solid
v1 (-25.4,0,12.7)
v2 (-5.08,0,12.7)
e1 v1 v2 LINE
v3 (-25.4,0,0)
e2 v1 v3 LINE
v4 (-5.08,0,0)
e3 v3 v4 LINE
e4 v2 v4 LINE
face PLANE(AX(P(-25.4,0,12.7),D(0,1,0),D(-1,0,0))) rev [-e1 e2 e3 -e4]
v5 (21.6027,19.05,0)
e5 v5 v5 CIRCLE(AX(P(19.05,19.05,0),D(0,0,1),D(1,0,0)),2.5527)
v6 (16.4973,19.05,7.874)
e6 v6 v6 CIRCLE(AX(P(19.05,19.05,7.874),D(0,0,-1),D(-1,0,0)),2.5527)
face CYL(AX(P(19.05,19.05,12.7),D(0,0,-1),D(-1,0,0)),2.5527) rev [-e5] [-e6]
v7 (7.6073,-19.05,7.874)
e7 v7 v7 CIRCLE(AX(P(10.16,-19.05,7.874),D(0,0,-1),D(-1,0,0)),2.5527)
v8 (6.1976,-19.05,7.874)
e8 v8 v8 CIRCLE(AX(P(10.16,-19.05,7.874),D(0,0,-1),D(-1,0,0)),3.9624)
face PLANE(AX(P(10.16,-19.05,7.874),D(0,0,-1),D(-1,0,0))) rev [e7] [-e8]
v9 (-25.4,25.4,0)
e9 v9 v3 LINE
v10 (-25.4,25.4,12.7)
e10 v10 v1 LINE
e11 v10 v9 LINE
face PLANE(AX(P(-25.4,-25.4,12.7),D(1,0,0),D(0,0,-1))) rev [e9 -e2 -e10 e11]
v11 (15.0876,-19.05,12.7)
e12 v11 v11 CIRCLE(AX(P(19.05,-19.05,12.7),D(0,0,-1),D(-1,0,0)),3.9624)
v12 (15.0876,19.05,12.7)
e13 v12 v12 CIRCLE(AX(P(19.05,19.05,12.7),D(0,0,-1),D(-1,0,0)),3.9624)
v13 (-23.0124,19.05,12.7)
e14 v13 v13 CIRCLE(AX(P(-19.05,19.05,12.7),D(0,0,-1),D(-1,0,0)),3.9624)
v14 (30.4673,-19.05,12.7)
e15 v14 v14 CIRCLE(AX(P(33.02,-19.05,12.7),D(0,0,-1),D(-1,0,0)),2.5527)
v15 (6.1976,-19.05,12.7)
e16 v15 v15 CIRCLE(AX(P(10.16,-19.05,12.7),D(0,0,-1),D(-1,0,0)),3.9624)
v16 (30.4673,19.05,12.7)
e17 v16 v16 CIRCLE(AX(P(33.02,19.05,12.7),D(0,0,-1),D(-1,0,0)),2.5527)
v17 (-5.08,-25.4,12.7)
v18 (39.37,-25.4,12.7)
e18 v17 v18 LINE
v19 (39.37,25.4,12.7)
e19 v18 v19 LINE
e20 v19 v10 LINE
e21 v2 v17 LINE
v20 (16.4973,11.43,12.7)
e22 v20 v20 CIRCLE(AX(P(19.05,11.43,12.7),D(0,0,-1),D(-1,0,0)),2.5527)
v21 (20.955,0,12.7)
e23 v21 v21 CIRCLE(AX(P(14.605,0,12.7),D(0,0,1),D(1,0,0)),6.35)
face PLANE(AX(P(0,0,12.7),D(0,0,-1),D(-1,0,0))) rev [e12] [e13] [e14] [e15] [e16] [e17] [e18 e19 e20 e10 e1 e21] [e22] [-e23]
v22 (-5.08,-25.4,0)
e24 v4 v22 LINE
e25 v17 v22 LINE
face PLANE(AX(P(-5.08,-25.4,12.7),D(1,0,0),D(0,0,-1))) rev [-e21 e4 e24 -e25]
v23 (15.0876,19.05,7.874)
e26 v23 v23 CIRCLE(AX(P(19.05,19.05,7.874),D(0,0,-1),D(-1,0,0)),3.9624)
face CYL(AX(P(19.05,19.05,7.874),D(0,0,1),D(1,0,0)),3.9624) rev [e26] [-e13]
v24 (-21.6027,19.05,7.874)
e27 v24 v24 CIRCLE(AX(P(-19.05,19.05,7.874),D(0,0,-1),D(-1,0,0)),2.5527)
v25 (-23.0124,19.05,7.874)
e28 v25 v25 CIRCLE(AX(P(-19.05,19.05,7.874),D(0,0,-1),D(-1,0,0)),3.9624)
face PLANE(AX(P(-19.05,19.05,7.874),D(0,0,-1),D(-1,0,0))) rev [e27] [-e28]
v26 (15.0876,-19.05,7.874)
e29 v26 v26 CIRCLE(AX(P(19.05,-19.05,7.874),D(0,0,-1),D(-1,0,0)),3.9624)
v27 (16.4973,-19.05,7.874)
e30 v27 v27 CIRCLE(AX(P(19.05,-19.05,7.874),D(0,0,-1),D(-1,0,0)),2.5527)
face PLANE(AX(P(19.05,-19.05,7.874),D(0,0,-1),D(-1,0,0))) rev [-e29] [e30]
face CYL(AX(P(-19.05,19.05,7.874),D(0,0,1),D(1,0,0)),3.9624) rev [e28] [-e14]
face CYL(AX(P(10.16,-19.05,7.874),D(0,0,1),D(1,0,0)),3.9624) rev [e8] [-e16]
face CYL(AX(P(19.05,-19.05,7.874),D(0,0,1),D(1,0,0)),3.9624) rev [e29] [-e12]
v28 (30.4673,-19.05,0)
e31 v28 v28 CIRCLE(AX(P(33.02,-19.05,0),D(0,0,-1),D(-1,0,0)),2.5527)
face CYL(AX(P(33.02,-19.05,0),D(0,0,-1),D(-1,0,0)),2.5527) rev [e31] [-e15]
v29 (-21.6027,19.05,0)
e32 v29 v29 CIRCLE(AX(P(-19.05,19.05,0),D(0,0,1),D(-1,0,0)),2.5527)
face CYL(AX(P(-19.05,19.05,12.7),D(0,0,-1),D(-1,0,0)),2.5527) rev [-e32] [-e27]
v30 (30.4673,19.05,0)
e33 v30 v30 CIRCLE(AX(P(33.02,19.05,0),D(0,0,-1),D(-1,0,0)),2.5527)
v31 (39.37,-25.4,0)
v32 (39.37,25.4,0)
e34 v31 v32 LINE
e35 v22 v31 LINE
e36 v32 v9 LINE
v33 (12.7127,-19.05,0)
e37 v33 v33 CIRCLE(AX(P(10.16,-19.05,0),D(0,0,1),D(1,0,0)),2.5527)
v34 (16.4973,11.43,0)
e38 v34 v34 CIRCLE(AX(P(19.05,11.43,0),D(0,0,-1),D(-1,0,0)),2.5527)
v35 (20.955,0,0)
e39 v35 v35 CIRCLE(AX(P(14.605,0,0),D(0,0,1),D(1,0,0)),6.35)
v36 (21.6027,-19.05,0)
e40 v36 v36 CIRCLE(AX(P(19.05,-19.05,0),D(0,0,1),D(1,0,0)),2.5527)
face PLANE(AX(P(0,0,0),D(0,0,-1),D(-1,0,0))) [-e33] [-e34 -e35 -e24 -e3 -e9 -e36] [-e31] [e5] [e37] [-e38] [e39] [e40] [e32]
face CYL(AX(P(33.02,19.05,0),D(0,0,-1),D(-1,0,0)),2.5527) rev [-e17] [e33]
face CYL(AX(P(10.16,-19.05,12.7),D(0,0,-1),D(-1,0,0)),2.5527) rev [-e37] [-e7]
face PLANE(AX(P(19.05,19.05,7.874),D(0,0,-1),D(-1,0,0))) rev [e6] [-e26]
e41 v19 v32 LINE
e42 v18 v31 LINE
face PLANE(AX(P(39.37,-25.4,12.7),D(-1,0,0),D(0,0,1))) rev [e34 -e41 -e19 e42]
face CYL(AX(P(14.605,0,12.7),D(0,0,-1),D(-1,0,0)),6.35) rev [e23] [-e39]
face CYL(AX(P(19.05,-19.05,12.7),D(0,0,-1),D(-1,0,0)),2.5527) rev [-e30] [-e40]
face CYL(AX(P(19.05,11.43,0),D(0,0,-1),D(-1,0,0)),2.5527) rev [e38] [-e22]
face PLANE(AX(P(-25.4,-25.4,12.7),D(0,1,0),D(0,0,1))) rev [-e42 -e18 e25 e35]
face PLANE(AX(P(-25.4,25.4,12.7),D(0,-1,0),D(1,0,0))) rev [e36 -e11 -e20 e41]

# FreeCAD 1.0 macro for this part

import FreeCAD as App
import Part
import Sketcher

V = App.Vector
Q = App.Units.Quantity

doc = App.newDocument("Part")
body = doc.addObject("PartDesign::Body", "Body")

# Sketch on XY plane
sketch1 = body.newObject("Sketcher::SketchObject", "Sketch")
sketch1.AttachmentSupport = (doc.getObject("XY_Plane"), [""])
sketch1.MapMode = "FlatFace"
sketch1.addGeometry(Part.LineSegment(V(-25.4, 25.4, 0), V(-25.4, -25.4, 0)), False)
sketch1.addGeometry(Part.LineSegment(V(-25.4, -25.4, 0), V(39.4, -25.4, 0)), False)
sketch1.addGeometry(Part.LineSegment(V(39.4, -25.4, 0), V(39.4, 25.4, 0)), False)
sketch1.addGeometry(Part.LineSegment(V(39.4, 25.4, 0), V(-25.4, 25.4, 0)), False)
sketch1.addGeometry(Part.Circle(V(10.2, -19.1, 0), V(0, 0, 1), 2.6), False)
sketch1.addGeometry(Part.Circle(V(19.1, -19.1, 0), V(0, 0, 1), 2.6), False)
sketch1.addGeometry(Part.Circle(V(-19.1, 19.1, 0), V(0, 0, 1), 2.6), False)
sketch1.addGeometry(Part.Circle(V(14.6, 0, 0), V(0, 0, 1), 6.3), False)
sketch1.addGeometry(Part.Circle(V(19.1, 19.1, 0), V(0, 0, 1), 2.6), False)
sketch1.addConstraint(Sketcher.Constraint("Coincident", 0, 2, 1, 1))
sketch1.addConstraint(Sketcher.Constraint("Coincident", 1, 2, 2, 1))
sketch1.addConstraint(Sketcher.Constraint("Coincident", 2, 2, 3, 1))
sketch1.addConstraint(Sketcher.Constraint("Coincident", 3, 2, 0, 1))
sketch1.addConstraint(Sketcher.Constraint("Vertical", 0))
sketch1.addConstraint(Sketcher.Constraint("Horizontal", 1))
sketch1.addConstraint(Sketcher.Constraint("Vertical", 2))
sketch1.addConstraint(Sketcher.Constraint("Horizontal", 3))
sketch1.addConstraint(Sketcher.Constraint("Equal", 4, 5))
sketch1.addConstraint(Sketcher.Constraint("Equal", 5, 6))
sketch1.addConstraint(Sketcher.Constraint("Equal", 6, 8))
sketch1.addConstraint(Sketcher.Constraint("Symmetric", 5, 3, 6, 3, -1, 1))
sketch1.addConstraint(Sketcher.Constraint("Symmetric", 6, 3, 8, 3, -2))
sketch1.addConstraint(Sketcher.Constraint("PointOnObject", 7, 3, -1))
sketch1.addConstraint(Sketcher.Constraint("Horizontal", 4, 3, 5, 3))
sketch1.addConstraint(Sketcher.Constraint("Diameter", 7, Q("0.5 in")))
sketch1.addConstraint(Sketcher.Constraint("DistanceY", 0, 2, 0, 1, Q("2 in")))
sketch1.addConstraint(Sketcher.Constraint("Diameter", 4, Q("0.201 in")))
sketch1.addConstraint(Sketcher.Constraint("DistanceX", 0, 2, -1, 1, Q("1 in")))
sketch1.addConstraint(Sketcher.Constraint("DistanceY", 0, 2, -1, 1, Q("1 in")))
sketch1.addConstraint(Sketcher.Constraint("DistanceX", 1, 1, 1, 2, Q("2.55 in")))
sketch1.addConstraint(Sketcher.Constraint("DistanceX", -1, 1, 4, 3, Q("0.4 in")))
sketch1.addConstraint(Sketcher.Constraint("DistanceY", 4, 3, 6, 3, Q("1.5 in")))
sketch1.addConstraint(Sketcher.Constraint("DistanceX", 6, 3, 5, 3, Q("1.5 in")))
sketch1.addConstraint(Sketcher.Constraint("DistanceX", -1, 1, 7, 3, Q("0.575 in")))
pad1 = body.newObject("PartDesign::Pad", "Pad")
pad1.Profile = sketch1
pad1.Length = Q("0.5 in")

# Sketch on XY plane
sketch2 = body.newObject("Sketcher::SketchObject", "Sketch001")
sketch2.AttachmentSupport = (doc.getObject("XY_Plane"), [""])
sketch2.MapMode = "FlatFace"
sketch2.addGeometry(Part.Circle(V(33, -19.1, 0), V(0, 0, 1), 2.6), False)
sketch2.addGeometry(Part.Circle(V(33, 19.1, 0), V(0, 0, 1), 2.6), False)
sketch2.addGeometry(Part.Circle(V(19.1, 11.4, 0), V(0, 0, 1), 2.6), False)
sketch2.addConstraint(Sketcher.Constraint("Equal", 0, 1))
sketch2.addConstraint(Sketcher.Constraint("Equal", 1, 2))
sketch2.addConstraint(Sketcher.Constraint("Symmetric", 0, 3, 1, 3, -1))
sketch2.addConstraint(Sketcher.Constraint("Diameter", 0, Q("0.201 in")))
sketch2.addConstraint(Sketcher.Constraint("DistanceX", -1, 1, 0, 3, Q("1.3 in")))
sketch2.addConstraint(Sketcher.Constraint("DistanceY", 0, 3, 1, 3, Q("1.5 in")))
sketch2.addConstraint(Sketcher.Constraint("DistanceY", 2, 3, 1, 3, Q("0.3 in")))
sketch2.addConstraint(Sketcher.Constraint("DistanceX", -1, 1, 2, 3, Q("0.75 in")))
doc.recompute()
hole = body.newObject("PartDesign::Hole", "Hole")
hole.Profile = sketch2
hole.ThreadType = "None"
hole.Diameter = Q("0.201 in")
hole.DepthType = "Dimension"
hole.Depth = Q("2.76 in")
hole.DrillPoint = "Angled"
hole.DrillPointAngle = 118
hole.Reversed = True

# Sketch on XY plane
sketch3 = body.newObject("Sketcher::SketchObject", "Sketch002")
sketch3.AttachmentSupport = (doc.getObject("XY_Plane"), [""])
sketch3.MapMode = "FlatFace"
sketch3.AttachmentOffset = App.Placement(V(0, 0, 0.5 * 25.4), App.Rotation())
sketch3.addGeometry(Part.Circle(V(19.1, 19.1, 0), V(0, 0, 1), 4), False)
sketch3.addGeometry(Part.Circle(V(19.1, -19.1, 0), V(0, 0, 1), 4), False)
sketch3.addGeometry(Part.Circle(V(10.2, -19.1, 0), V(0, 0, 1), 4), False)
sketch3.addGeometry(Part.Circle(V(-19.1, 19.1, 0), V(0, 0, 1), 4), False)
sketch3.addConstraint(Sketcher.Constraint("Equal", 0, 1))
sketch3.addConstraint(Sketcher.Constraint("Equal", 1, 2))
sketch3.addConstraint(Sketcher.Constraint("Equal", 2, 3))
sketch3.addConstraint(Sketcher.Constraint("Symmetric", 1, 3, 3, 3, -1, 1))
sketch3.addConstraint(Sketcher.Constraint("Symmetric", 0, 3, 3, 3, -2))
sketch3.addConstraint(Sketcher.Constraint("Horizontal", 1, 3, 2, 3))
sketch3.addConstraint(Sketcher.Constraint("Diameter", 0, Q("0.312 in")))
sketch3.addConstraint(Sketcher.Constraint("DistanceX", -1, 1, 2, 3, Q("0.4 in")))
sketch3.addConstraint(Sketcher.Constraint("DistanceY", 1, 3, 0, 3, Q("1.5 in")))
sketch3.addConstraint(Sketcher.Constraint("DistanceX", 3, 3, 0, 3, Q("1.5 in")))
pocket1 = body.newObject("PartDesign::Pocket", "Pocket")
pocket1.Profile = sketch3
pocket1.Length = Q("0.19 in")

# Sketch on XY plane
sketch4 = body.newObject("Sketcher::SketchObject", "Sketch003")
sketch4.AttachmentSupport = (doc.getObject("XY_Plane"), [""])
sketch4.MapMode = "FlatFace"
sketch4.addGeometry(Part.LineSegment(V(-5, 0, 0), V(-5, -25, 0)), False)
sketch4.addGeometry(Part.LineSegment(V(-5, -25, 0), V(-25, -25, 0)), False)
sketch4.addGeometry(Part.LineSegment(V(-25, -25, 0), V(-25, 0, 0)), False)
sketch4.addGeometry(Part.LineSegment(V(-25, 0, 0), V(-5, 0, 0)), False)
sketch4.addConstraint(Sketcher.Constraint("Coincident", 0, 2, 1, 1))
sketch4.addConstraint(Sketcher.Constraint("Coincident", 1, 2, 2, 1))
sketch4.addConstraint(Sketcher.Constraint("Coincident", 2, 2, 3, 1))
sketch4.addConstraint(Sketcher.Constraint("Coincident", 3, 2, 0, 1))
sketch4.addConstraint(Sketcher.Constraint("Vertical", 0))
sketch4.addConstraint(Sketcher.Constraint("Horizontal", 1))
sketch4.addConstraint(Sketcher.Constraint("Vertical", 2))
sketch4.addConstraint(Sketcher.Constraint("Horizontal", 3))
sketch4.addConstraint(Sketcher.Constraint("PointOnObject", 2, 2, -1))
sketch4.addConstraint(Sketcher.Constraint("DistanceY", 0, 2, 0, 1, Q("1 in")))
sketch4.addConstraint(Sketcher.Constraint("DistanceX", 1, 2, 1, 1, Q("0.8 in")))
sketch4.addConstraint(Sketcher.Constraint("DistanceX", 1, 2, -1, 1, Q("1 in")))
pocket2 = body.newObject("PartDesign::Pocket", "Pocket001")
pocket2.Profile = sketch4
pocket2.Type = "ThroughAll"
pocket2.Reversed = True

doc.recompute()
